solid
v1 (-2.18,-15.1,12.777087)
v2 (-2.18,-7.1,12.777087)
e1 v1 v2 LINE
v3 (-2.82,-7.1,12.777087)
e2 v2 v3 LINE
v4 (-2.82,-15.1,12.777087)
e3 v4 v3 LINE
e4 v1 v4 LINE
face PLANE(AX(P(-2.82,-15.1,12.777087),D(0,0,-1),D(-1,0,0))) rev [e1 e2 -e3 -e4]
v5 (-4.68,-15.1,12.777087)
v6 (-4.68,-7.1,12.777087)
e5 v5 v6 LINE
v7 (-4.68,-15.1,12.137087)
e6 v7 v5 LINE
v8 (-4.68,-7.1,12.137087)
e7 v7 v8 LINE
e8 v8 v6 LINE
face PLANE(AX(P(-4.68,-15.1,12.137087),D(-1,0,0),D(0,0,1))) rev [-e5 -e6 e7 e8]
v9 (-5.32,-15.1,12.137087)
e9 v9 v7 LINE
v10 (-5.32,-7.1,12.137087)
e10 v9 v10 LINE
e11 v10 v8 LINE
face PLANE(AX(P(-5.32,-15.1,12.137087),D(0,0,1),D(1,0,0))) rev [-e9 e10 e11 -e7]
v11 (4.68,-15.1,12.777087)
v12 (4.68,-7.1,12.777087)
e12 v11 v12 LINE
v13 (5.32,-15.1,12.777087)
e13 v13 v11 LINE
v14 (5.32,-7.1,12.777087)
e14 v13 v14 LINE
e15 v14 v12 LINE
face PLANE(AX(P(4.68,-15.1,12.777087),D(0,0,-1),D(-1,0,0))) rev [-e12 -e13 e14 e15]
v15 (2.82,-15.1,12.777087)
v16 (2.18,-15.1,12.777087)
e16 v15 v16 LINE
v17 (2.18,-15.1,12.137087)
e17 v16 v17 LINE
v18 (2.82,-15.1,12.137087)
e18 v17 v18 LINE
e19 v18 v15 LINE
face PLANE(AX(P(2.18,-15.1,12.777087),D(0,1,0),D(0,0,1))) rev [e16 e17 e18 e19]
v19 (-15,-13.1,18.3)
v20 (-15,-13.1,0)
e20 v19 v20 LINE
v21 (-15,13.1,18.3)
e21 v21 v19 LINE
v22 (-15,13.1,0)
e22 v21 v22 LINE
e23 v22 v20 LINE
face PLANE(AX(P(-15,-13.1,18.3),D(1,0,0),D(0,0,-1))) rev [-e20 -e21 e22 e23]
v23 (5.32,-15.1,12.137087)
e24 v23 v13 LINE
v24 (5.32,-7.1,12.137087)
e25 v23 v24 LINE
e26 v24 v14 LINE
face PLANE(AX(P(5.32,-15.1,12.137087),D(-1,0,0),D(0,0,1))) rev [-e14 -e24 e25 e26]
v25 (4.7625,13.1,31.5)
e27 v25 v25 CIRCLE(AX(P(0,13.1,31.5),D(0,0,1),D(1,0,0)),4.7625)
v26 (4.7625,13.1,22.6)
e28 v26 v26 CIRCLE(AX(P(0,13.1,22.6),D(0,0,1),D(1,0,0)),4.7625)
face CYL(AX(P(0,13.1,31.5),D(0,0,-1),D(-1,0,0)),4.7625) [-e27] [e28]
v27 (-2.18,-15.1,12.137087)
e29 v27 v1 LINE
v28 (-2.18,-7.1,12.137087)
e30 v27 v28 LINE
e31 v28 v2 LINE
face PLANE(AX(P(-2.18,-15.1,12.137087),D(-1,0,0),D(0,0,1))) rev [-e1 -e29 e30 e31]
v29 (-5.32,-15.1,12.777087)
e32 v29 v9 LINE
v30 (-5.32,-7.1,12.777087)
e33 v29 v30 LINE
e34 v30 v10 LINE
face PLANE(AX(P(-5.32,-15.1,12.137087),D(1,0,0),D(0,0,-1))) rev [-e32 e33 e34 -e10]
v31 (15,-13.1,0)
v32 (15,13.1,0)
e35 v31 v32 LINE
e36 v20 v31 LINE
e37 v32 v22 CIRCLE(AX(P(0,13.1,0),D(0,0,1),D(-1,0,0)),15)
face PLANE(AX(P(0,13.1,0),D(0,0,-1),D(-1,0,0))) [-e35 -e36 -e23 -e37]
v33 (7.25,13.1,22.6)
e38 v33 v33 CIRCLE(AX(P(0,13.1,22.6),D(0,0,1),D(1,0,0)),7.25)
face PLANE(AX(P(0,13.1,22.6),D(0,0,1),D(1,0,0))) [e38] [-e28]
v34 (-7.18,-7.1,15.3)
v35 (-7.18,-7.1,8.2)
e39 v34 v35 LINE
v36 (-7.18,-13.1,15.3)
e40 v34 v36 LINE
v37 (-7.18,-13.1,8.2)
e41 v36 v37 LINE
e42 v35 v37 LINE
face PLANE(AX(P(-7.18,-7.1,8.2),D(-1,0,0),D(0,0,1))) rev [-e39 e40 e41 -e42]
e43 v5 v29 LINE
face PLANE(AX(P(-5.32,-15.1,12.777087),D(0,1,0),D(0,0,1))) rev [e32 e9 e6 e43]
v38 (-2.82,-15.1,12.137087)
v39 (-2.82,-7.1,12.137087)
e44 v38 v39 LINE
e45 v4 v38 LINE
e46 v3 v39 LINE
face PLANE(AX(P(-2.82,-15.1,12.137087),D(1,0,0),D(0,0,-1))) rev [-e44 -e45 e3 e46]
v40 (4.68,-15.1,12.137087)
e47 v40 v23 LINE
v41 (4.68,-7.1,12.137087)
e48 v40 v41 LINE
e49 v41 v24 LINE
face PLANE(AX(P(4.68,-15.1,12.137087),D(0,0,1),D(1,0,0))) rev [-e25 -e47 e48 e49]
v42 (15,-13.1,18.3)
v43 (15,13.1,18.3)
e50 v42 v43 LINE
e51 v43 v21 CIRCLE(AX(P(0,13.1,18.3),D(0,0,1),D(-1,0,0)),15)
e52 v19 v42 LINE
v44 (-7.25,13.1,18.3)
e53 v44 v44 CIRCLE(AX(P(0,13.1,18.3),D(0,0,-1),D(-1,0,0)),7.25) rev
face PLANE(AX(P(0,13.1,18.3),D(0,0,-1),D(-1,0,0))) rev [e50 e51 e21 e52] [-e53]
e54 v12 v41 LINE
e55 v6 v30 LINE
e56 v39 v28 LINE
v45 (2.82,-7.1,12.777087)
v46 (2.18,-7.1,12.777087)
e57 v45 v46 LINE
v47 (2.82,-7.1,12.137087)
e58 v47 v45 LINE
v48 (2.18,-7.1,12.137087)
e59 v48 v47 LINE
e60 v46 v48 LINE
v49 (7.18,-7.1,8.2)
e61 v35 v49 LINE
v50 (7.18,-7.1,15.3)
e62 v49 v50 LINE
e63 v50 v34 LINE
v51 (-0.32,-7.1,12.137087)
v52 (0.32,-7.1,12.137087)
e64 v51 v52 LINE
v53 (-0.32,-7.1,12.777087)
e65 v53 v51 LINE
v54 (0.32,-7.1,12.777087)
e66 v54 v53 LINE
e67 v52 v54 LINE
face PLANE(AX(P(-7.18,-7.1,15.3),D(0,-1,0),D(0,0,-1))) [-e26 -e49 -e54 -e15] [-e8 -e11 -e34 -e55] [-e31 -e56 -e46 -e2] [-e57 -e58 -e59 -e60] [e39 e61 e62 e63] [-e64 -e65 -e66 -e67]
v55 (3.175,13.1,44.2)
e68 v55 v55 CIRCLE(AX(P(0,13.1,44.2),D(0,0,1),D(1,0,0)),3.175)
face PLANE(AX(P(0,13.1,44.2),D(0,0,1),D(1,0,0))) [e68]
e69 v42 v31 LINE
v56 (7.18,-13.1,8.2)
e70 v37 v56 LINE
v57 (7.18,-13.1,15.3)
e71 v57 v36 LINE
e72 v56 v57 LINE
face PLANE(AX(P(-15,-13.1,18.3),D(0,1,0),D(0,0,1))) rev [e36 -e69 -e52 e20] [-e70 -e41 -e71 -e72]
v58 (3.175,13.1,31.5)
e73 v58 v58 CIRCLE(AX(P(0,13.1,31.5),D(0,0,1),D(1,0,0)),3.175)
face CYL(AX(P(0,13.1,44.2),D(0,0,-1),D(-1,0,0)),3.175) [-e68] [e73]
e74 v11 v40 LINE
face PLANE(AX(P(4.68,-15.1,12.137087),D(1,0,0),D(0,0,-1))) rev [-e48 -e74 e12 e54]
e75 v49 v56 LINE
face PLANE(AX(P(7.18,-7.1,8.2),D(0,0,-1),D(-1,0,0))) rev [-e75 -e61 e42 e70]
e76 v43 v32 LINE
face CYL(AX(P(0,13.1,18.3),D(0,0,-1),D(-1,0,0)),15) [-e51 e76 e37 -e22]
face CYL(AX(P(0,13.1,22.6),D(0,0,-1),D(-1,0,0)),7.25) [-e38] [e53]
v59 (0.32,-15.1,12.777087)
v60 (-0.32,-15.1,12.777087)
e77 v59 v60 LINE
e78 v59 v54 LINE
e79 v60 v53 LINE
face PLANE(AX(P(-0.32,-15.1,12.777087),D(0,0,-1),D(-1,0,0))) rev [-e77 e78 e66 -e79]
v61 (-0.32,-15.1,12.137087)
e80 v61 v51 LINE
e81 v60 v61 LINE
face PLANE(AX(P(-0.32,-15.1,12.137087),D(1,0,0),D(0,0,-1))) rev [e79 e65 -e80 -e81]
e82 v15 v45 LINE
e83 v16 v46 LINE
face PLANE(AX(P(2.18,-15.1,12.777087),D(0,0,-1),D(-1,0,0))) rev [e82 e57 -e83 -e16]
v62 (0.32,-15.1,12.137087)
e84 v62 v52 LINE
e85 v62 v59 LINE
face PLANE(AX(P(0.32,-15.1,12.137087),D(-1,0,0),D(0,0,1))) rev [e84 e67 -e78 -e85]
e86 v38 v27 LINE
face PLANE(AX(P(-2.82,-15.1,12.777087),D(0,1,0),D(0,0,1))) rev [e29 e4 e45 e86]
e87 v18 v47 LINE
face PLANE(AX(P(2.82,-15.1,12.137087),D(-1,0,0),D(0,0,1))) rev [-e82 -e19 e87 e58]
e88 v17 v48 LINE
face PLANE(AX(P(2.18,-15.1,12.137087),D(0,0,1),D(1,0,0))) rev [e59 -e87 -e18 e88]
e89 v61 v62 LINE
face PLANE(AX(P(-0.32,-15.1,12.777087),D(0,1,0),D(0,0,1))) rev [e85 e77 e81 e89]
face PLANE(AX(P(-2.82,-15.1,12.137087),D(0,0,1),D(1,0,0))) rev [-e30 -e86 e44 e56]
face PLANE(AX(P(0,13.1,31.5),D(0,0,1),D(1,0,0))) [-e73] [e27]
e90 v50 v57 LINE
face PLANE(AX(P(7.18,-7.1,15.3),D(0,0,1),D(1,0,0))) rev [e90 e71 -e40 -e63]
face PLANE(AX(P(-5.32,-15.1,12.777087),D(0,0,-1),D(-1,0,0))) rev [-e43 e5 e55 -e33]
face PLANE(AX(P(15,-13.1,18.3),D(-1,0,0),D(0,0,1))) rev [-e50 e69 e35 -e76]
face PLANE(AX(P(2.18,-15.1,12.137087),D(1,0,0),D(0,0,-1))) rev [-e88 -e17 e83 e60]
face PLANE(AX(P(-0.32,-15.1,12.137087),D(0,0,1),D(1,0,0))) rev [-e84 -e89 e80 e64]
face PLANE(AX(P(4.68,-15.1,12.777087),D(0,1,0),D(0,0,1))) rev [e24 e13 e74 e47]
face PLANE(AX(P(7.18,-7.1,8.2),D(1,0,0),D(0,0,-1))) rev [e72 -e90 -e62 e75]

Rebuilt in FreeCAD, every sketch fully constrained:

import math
import FreeCAD as App
import Part
import Sketcher


def add_polygon(sketch, points):
    """Adds a closed chain of lines whose ends are joined by coincident constraints."""
    first, n = sketch.GeometryCount, len(points)
    for a, b in zip(points, points[1:] + points[:1]):
        sketch.addGeometry(Part.LineSegment(App.Vector(*a, 0), App.Vector(*b, 0)), False)
    for i in range(n):
        sketch.addConstraint(Sketcher.Constraint("Coincident", first + i, 2, first + (i + 1) % n, 1))

doc = App.newDocument("Part")
params = doc.addObject("Spreadsheet::Sheet", "Params")
for row, (alias, value) in enumerate([
    ("sketch1_radius", "15 mm"),
    ("sketch1_height", "26.2 mm"),
    ("pad1_length", "18.3 mm"),
    ("sketch2_diameter", "14.5 mm"),
    ("pad2_length", "4.3 mm"),
    ("pad3_length", "8.9 mm"),
    ("sketch4_diameter", "6.35 mm"),
    ("pad4_length", "12.7 mm"),
    ("sketch5_height", "7.1 mm"),
    ("sketch5_width", "14.36 mm"),
    ("pocket1_length", "6 mm"),
    ("sketch6_width", "0.64 mm"),
    ("pad5_length", "8 mm"),
], start=1):
    params.set(f"A{row}", alias)
    params.set(f"B{row}", "=" + value)
    params.setAlias(f"B{row}", alias)

body = doc.addObject("PartDesign::Body", "Body")

# Sketch on XY plane
sketch1 = body.newObject("Sketcher::SketchObject", "Sketch")
sketch1.AttachmentSupport = (doc.getObject("XY_Plane"), [""])
sketch1.MapMode = "FlatFace"
sketch1.addGeometry(Part.LineSegment(App.Vector(-15, -13, 0), App.Vector(15, -13, 0)), False)
sketch1.addGeometry(Part.LineSegment(App.Vector(15, -13, 0), App.Vector(15, 13, 0)), False)
sketch1.addGeometry(Part.ArcOfCircle(Part.Circle(App.Vector(0, 13, 0), App.Vector(0, 0, 1), 15), math.radians(0), math.radians(180)), False)
sketch1.addGeometry(Part.LineSegment(App.Vector(-15, 13, 0), App.Vector(-15, -13, 0)), False)
sketch1.addConstraint(Sketcher.Constraint("Coincident", 0, 2, 1, 1))
sketch1.addConstraint(Sketcher.Constraint("Tangent", 1, 2, 2, 1))
sketch1.addConstraint(Sketcher.Constraint("Tangent", 2, 2, 3, 1))
sketch1.addConstraint(Sketcher.Constraint("Coincident", 3, 2, 0, 1))
sketch1.addConstraint(Sketcher.Constraint("Horizontal", 0))
sketch1.addConstraint(Sketcher.Constraint("Vertical", 1))
sketch1.addConstraint(Sketcher.Constraint("Vertical", 3))
sketch1.addConstraint(Sketcher.Constraint("Symmetric", 0, 2, 2, 2, -1, 1))
sketch1.addConstraint(Sketcher.Constraint("Radius", 2, 15.0))
sketch1.addConstraint(Sketcher.Constraint("DistanceY", 1, 1, 1, 2, 26.2))
sketch1.setExpression("Constraints[8]", "Params.sketch1_radius")
sketch1.setExpression("Constraints[9]", "Params.sketch1_height")
pad1 = body.newObject("PartDesign::Pad", "Pad")
pad1.Profile = sketch1
pad1.setExpression("Length", "Params.pad1_length")

# Sketch on XY plane
sketch2 = body.newObject("Sketcher::SketchObject", "Sketch001")
sketch2.AttachmentSupport = (doc.getObject("XY_Plane"), [""])
sketch2.MapMode = "FlatFace"
sketch2.AttachmentOffset = App.Placement(App.Vector(0, 0, 18.3), App.Rotation())
sketch2.addGeometry(Part.Circle(App.Vector(0, 13, 0), App.Vector(0, 0, 1), 7), False)
sketch2.addConstraint(Sketcher.Constraint("PointOnObject", 0, 3, -2))
sketch2.addConstraint(Sketcher.Constraint("Diameter", 0, 14.5))
sketch2.addConstraint(Sketcher.Constraint("DistanceY", -1, 1, 0, 3, 13.1))
sketch2.setExpression("Constraints[1]", "Params.sketch2_diameter")
pad2 = body.newObject("PartDesign::Pad", "Pad001")
pad2.Profile = sketch2
pad2.setExpression("Length", "Params.pad2_length")

# Sketch on XY plane
sketch3 = body.newObject("Sketcher::SketchObject", "Sketch002")
sketch3.AttachmentSupport = (doc.getObject("XY_Plane"), [""])
sketch3.MapMode = "FlatFace"
sketch3.AttachmentOffset = App.Placement(App.Vector(0, 0, 22.6), App.Rotation())
sketch3.addGeometry(Part.Circle(App.Vector(0, 13.1, 0), App.Vector(0, 0, 1), 4.8), False)
sketch3.addConstraint(Sketcher.Constraint("PointOnObject", 0, 3, -2))
sketch3.addConstraint(Sketcher.Constraint("Diameter", 0, 9.525))
sketch3.addConstraint(Sketcher.Constraint("DistanceY", -1, 1, 0, 3, 13.1))
pad3 = body.newObject("PartDesign::Pad", "Pad002")
pad3.Profile = sketch3
pad3.setExpression("Length", "Params.pad3_length")

# Sketch on XY plane
sketch4 = body.newObject("Sketcher::SketchObject", "Sketch003")
sketch4.AttachmentSupport = (doc.getObject("XY_Plane"), [""])
sketch4.MapMode = "FlatFace"
sketch4.AttachmentOffset = App.Placement(App.Vector(0, 0, 31.5), App.Rotation())
sketch4.addGeometry(Part.Circle(App.Vector(0, 13.1, 0), App.Vector(0, 0, 1), 3.2), False)
sketch4.addConstraint(Sketcher.Constraint("PointOnObject", 0, 3, -2))
sketch4.addConstraint(Sketcher.Constraint("Diameter", 0, 6.35))
sketch4.addConstraint(Sketcher.Constraint("DistanceY", -1, 1, 0, 3, 13.1))
sketch4.setExpression("Constraints[1]", "Params.sketch4_diameter")
pad4 = body.newObject("PartDesign::Pad", "Pad003")
pad4.Profile = sketch4
pad4.setExpression("Length", "Params.pad4_length")

# Sketch on XZ plane
sketch5 = body.newObject("Sketcher::SketchObject", "Sketch004")
sketch5.AttachmentSupport = (doc.getObject("XZ_Plane"), [""])
sketch5.MapMode = "FlatFace"
sketch5.AttachmentOffset = App.Placement(App.Vector(0, 0, 13.1), App.Rotation())
add_polygon(sketch5, [(-7, 15), (-7, 8), (7, 8), (7, 15)])  # lines 0-3
sketch5.addConstraint(Sketcher.Constraint("Vertical", 0))
sketch5.addConstraint(Sketcher.Constraint("Horizontal", 1))
sketch5.addConstraint(Sketcher.Constraint("Vertical", 2))
sketch5.addConstraint(Sketcher.Constraint("Horizontal", 3))
sketch5.addConstraint(Sketcher.Constraint("DistanceY", 0, 2, 0, 1, 7.1))
sketch5.addConstraint(Sketcher.Constraint("DistanceX", 1, 1, 1, 2, 14.36))
sketch5.addConstraint(Sketcher.Constraint("DistanceY", -1, 1, 0, 2, 8.2))
sketch5.addConstraint(Sketcher.Constraint("DistanceX", 0, 2, -1, 1, 7.18))
sketch5.setExpression("Constraints[8]", "Params.sketch5_height")
sketch5.setExpression("Constraints[9]", "Params.sketch5_width")
pocket1 = body.newObject("PartDesign::Pocket", "Pocket")
pocket1.Profile = sketch5
pocket1.setExpression("Length", "Params.pocket1_length")

# Sketch on XZ plane
sketch6 = body.newObject("Sketcher::SketchObject", "Sketch005")
sketch6.AttachmentSupport = (doc.getObject("XZ_Plane"), [""])
sketch6.MapMode = "FlatFace"
sketch6.AttachmentOffset = App.Placement(App.Vector(0, 0, 7.1), App.Rotation())
add_polygon(sketch6, [(-5.3, 12.8), (-5.3, 12.1), (-4.7, 12.1), (-4.7, 12.8)])  # lines 0-3
add_polygon(sketch6, [(-2.8, 12.8), (-2.8, 12.1), (-2.2, 12.1), (-2.2, 12.8)])  # lines 4-7
add_polygon(sketch6, [(-0.3, 12.8), (-0.3, 12.1), (0.3, 12.1), (0.3, 12.8)])  # lines 8-11
add_polygon(sketch6, [(2.2, 12.8), (2.2, 12.1), (2.8, 12.1), (2.8, 12.8)])  # lines 12-15
add_polygon(sketch6, [(4.7, 12.8), (4.7, 12.1), (5.3, 12.1), (5.3, 12.8)])  # lines 16-19
sketch6.addConstraint(Sketcher.Constraint("Vertical", 0))
sketch6.addConstraint(Sketcher.Constraint("Horizontal", 1))
sketch6.addConstraint(Sketcher.Constraint("Vertical", 2))
sketch6.addConstraint(Sketcher.Constraint("Horizontal", 3))
sketch6.addConstraint(Sketcher.Constraint("Vertical", 4))
sketch6.addConstraint(Sketcher.Constraint("Horizontal", 5))
sketch6.addConstraint(Sketcher.Constraint("Vertical", 6))
sketch6.addConstraint(Sketcher.Constraint("Horizontal", 7))
sketch6.addConstraint(Sketcher.Constraint("Vertical", 8))
sketch6.addConstraint(Sketcher.Constraint("Horizontal", 9))
sketch6.addConstraint(Sketcher.Constraint("Vertical", 10))
sketch6.addConstraint(Sketcher.Constraint("Horizontal", 11))
sketch6.addConstraint(Sketcher.Constraint("Vertical", 12))
sketch6.addConstraint(Sketcher.Constraint("Horizontal", 13))
sketch6.addConstraint(Sketcher.Constraint("Vertical", 14))
sketch6.addConstraint(Sketcher.Constraint("Horizontal", 15))
sketch6.addConstraint(Sketcher.Constraint("Vertical", 16))
sketch6.addConstraint(Sketcher.Constraint("Horizontal", 17))
sketch6.addConstraint(Sketcher.Constraint("Vertical", 18))
sketch6.addConstraint(Sketcher.Constraint("Horizontal", 19))
sketch6.addConstraint(Sketcher.Constraint("Symmetric", 5, 2, 12, 2, -2))
sketch6.addConstraint(Sketcher.Constraint("Symmetric", 7, 2, 14, 2, -2))
sketch6.addConstraint(Sketcher.Constraint("Symmetric", 1, 2, 16, 2, -2))
sketch6.addConstraint(Sketcher.Constraint("Symmetric", 3, 2, 18, 2, -2))
sketch6.addConstraint(Sketcher.Constraint("Horizontal", 1, 2, 4, 2))
sketch6.addConstraint(Sketcher.Constraint("Horizontal", 3, 2, 6, 2))
sketch6.addConstraint(Sketcher.Constraint("Horizontal", 5, 2, 8, 2))
sketch6.addConstraint(Sketcher.Constraint("Horizontal", 7, 2, 10, 2))
sketch6.addConstraint(Sketcher.Constraint("Equal", 3, 5))
sketch6.addConstraint(Sketcher.Constraint("Equal", 7, 9))
sketch6.addConstraint(Sketcher.Constraint("Equal", 19, 0))
sketch6.addConstraint(Sketcher.Constraint("DistanceX", 1, 1, 1, 2, 0.64))
sketch6.addConstraint(Sketcher.Constraint("DistanceX", 0, 2, 4, 2, 2.5))
sketch6.addConstraint(Sketcher.Constraint("DistanceX", 4, 2, 8, 2, 2.5))
sketch6.addConstraint(Sketcher.Constraint("DistanceX", 8, 2, 12, 2, 2.5))
sketch6.addConstraint(Sketcher.Constraint("DistanceY", -1, 1, 0, 2, 12.137087))
sketch6.setExpression("Constraints[51]", "Params.sketch6_width")
pad5 = body.newObject("PartDesign::Pad", "Pad004")
pad5.Profile = sketch6
pad5.setExpression("Length", "Params.pad5_length")

doc.recompute()
